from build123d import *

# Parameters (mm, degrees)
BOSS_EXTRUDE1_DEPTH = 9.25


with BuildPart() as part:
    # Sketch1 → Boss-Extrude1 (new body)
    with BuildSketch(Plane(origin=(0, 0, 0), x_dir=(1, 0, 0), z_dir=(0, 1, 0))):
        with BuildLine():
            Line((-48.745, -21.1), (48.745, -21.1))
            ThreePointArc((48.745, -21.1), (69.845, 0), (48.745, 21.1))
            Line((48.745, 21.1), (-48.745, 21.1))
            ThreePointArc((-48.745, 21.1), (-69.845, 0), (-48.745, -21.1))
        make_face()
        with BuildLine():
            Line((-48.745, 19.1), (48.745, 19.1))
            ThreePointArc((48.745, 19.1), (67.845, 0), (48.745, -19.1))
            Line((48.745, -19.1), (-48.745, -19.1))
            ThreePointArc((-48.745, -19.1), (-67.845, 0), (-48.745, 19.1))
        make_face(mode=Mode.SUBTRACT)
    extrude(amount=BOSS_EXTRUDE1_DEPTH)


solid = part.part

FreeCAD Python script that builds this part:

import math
import FreeCAD as App
import Part
import Sketcher
from FreeCAD import Vector

doc = App.newDocument("Part")
body = doc.addObject("PartDesign::Body", "Body")

# Sketch on XZ plane
sketch1 = body.newObject("Sketcher::SketchObject", "Sketch")
sketch1.AttachmentSupport = (doc.getObject("XZ_Plane"), [""])
sketch1.MapMode = "FlatFace"
sketch1.addGeometry(Part.LineSegment(Vector(-49, 21, 0), Vector(49, 21, 0)), False)
sketch1.addGeometry(Part.ArcOfCircle(Part.Circle(Vector(49, 0, 0), Vector(0, 0, 1), 21), math.radians(-90), math.radians(90)), False)
sketch1.addGeometry(Part.LineSegment(Vector(49, -21, 0), Vector(-49, -21, 0)), False)
sketch1.addGeometry(Part.ArcOfCircle(Part.Circle(Vector(-49, 0, 0), Vector(0, 0, 1), 21), math.radians(90), math.radians(270)), False)
sketch1.addGeometry(Part.ArcOfCircle(Part.Circle(Vector(-49, 0, 0), Vector(0, 0, 1), 19), math.radians(90), math.radians(270)), False)
sketch1.addGeometry(Part.LineSegment(Vector(-49, -19, 0), Vector(49, -19, 0)), False)
sketch1.addGeometry(Part.ArcOfCircle(Part.Circle(Vector(49, 0, 0), Vector(0, 0, 1), 19), math.radians(-90), math.radians(90)), False)
sketch1.addGeometry(Part.LineSegment(Vector(49, 19, 0), Vector(-49, 19, 0)), False)
sketch1.addConstraint(Sketcher.Constraint("Tangent", 0, 2, 1, 2))
sketch1.addConstraint(Sketcher.Constraint("Tangent", 1, 1, 2, 1))
sketch1.addConstraint(Sketcher.Constraint("Tangent", 2, 2, 3, 2))
sketch1.addConstraint(Sketcher.Constraint("Tangent", 3, 1, 0, 1))
sketch1.addConstraint(Sketcher.Constraint("Tangent", 4, 2, 5, 1))
sketch1.addConstraint(Sketcher.Constraint("Tangent", 5, 2, 6, 1))
sketch1.addConstraint(Sketcher.Constraint("Tangent", 6, 2, 7, 1))
sketch1.addConstraint(Sketcher.Constraint("Tangent", 7, 2, 4, 1))
sketch1.addConstraint(Sketcher.Constraint("Horizontal", 0))
sketch1.addConstraint(Sketcher.Constraint("Horizontal", 2))
sketch1.addConstraint(Sketcher.Constraint("Horizontal", 5))
sketch1.addConstraint(Sketcher.Constraint("Horizontal", 7))
sketch1.addConstraint(Sketcher.Constraint("Coincident", 4, 3, 3, 3))
sketch1.addConstraint(Sketcher.Constraint("Symmetric", 1, 3, 3, 3, -1, 1))
sketch1.addConstraint(Sketcher.Constraint("Vertical", 6, 3, 0, 2))
sketch1.addConstraint(Sketcher.Constraint("Radius", 1, 21.1))
sketch1.addConstraint(Sketcher.Constraint("Radius", 4, 19.1))
sketch1.addConstraint(Sketcher.Constraint("DistanceX", 0, 1, 0, 2, 97.49))
pad1 = body.newObject("PartDesign::Pad", "Pad")
pad1.Profile = sketch1
pad1.Length = 9.25
pad1.Reversed = True

doc.recompute()
